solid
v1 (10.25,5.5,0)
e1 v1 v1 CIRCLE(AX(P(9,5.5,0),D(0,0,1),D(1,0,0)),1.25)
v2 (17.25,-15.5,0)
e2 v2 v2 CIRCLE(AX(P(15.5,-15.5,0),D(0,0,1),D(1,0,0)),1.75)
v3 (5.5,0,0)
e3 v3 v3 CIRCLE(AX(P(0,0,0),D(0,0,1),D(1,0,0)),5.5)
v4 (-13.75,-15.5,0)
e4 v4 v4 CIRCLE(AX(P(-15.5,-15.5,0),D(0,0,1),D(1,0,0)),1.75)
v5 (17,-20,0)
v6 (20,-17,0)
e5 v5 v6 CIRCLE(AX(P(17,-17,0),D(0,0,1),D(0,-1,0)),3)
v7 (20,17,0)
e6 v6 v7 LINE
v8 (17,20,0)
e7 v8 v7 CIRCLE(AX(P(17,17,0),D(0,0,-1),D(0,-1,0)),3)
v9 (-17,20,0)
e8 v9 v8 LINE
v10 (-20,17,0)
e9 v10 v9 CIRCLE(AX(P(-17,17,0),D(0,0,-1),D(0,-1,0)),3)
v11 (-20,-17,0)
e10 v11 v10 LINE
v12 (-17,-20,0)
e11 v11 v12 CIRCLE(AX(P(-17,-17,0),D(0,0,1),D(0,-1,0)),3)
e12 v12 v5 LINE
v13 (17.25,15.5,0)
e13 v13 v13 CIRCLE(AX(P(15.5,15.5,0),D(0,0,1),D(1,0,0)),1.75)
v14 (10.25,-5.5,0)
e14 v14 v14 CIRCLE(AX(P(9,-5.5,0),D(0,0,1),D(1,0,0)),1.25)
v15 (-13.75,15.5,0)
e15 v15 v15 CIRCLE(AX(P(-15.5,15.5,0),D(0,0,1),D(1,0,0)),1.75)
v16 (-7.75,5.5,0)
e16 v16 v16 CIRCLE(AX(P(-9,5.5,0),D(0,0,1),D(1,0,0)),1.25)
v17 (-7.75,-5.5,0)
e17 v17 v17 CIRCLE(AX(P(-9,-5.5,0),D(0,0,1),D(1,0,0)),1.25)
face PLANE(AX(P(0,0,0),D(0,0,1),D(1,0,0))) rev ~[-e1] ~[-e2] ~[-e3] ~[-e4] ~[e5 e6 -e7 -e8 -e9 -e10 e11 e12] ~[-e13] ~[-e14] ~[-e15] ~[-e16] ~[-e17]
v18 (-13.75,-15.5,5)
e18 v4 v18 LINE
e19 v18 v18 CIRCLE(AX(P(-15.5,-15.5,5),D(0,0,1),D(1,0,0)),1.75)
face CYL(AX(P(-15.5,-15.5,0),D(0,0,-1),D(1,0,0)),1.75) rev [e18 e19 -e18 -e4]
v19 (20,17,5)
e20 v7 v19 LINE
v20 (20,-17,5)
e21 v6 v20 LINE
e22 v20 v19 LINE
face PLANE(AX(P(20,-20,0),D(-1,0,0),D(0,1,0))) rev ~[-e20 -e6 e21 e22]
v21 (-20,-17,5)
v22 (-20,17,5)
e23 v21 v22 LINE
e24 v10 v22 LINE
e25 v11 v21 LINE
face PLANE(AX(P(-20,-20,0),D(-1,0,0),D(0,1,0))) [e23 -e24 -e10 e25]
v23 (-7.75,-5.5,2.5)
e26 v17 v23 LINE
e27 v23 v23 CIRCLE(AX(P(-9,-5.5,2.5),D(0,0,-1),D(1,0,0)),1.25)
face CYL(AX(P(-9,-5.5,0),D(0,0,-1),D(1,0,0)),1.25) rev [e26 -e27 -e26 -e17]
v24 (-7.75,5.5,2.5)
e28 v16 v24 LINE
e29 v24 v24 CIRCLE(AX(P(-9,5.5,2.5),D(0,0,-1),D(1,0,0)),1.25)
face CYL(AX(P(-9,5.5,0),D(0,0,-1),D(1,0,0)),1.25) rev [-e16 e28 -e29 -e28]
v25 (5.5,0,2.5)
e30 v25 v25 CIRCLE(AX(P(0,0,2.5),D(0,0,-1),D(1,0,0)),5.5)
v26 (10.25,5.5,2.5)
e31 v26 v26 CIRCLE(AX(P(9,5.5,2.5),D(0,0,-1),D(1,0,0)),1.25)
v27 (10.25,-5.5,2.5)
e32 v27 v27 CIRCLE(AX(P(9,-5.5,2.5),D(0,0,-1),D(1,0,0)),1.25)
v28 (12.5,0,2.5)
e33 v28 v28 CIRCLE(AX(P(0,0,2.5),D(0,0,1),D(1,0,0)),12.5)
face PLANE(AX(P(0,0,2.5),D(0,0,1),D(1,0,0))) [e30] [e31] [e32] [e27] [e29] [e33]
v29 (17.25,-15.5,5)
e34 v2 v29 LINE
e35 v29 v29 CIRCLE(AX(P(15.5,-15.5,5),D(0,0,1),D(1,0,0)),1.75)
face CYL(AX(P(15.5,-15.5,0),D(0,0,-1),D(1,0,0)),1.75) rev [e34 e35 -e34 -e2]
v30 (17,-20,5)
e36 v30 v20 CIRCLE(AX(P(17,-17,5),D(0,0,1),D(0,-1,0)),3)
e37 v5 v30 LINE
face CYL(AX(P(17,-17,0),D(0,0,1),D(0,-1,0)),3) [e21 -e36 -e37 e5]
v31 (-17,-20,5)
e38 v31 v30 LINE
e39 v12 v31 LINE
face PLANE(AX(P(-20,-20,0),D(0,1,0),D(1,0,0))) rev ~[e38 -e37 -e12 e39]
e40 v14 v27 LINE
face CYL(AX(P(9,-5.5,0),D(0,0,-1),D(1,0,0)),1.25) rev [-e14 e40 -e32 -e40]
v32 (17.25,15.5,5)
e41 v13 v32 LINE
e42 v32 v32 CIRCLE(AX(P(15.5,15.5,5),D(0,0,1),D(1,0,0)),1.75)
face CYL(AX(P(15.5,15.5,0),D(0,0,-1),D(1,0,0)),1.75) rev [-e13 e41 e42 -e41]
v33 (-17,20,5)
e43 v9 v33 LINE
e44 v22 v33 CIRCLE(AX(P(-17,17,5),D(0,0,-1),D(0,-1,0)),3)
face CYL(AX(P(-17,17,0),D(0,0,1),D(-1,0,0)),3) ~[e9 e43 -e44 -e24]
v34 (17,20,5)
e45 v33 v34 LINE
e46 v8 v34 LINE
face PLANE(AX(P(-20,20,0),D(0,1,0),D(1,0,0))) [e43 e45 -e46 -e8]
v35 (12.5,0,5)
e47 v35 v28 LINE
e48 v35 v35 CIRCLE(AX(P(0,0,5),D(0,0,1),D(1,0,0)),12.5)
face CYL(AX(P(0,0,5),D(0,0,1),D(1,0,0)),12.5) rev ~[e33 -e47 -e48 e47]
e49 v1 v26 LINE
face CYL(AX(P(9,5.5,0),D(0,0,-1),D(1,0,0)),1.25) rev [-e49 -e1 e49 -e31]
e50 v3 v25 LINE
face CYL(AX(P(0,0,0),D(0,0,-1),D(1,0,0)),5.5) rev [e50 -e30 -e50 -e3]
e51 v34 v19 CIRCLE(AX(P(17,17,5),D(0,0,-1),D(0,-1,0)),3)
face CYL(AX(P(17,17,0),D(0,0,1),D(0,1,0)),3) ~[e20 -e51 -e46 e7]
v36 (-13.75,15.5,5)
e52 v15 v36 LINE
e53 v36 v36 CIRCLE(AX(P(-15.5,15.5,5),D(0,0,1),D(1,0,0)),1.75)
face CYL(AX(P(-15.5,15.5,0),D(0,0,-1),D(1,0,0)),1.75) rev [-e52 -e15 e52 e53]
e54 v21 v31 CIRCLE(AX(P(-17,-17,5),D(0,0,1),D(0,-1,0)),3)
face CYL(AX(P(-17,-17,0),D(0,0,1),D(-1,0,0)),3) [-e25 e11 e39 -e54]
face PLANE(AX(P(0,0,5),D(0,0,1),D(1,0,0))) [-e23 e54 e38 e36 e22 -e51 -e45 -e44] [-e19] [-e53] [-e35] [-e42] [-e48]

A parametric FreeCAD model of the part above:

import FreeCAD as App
import Part
import Sketcher

V = App.Vector


def edges_at(feature, points):
    """Names of the edges that pass closest to the given points."""
    edges = feature.Shape.Edges
    near = lambda p: min(range(len(edges)), key=lambda i: edges[i].distToShape(Part.Vertex(*p))[0])
    return sorted({f"Edge{near(p) + 1}" for p in points})


def add_polygon(sketch, points):
    """Adds a closed chain of lines whose ends are joined by coincident constraints."""
    first, n = sketch.GeometryCount, len(points)
    for a, b in zip(points, points[1:] + points[:1]):
        sketch.addGeometry(Part.LineSegment(App.Vector(*a, 0), App.Vector(*b, 0)), False)
    for i in range(n):
        sketch.addConstraint(Sketcher.Constraint("Coincident", first + i, 2, first + (i + 1) % n, 1))

doc = App.newDocument("Part")
body = doc.addObject("PartDesign::Body", "Body")

sketch1 = body.newObject("Sketcher::SketchObject", "Sketch")
sketch1.AttachmentSupport = (doc.getObject("XY_Plane"), [""])
sketch1.MapMode = "FlatFace"
add_polygon(sketch1, [(-20, 20), (-20, -20), (20, -20), (20, 20)])
sketch1.addGeometry(Part.Circle(V(-15.5, -15.5, 0), V(0, 0, 1), 1.8), False)
sketch1.addGeometry(Part.Circle(V(-9, -5.5, 0), V(0, 0, 1), 1.2), False)
sketch1.addGeometry(Part.Circle(V(15.5, -15.5, 0), V(0, 0, 1), 1.8), False)
sketch1.addGeometry(Part.Circle(V(9, -5.5, 0), V(0, 0, 1), 1.2), False)
sketch1.addGeometry(Part.Circle(V(-9, 5.5, 0), V(0, 0, 1), 1.2), False)
sketch1.addGeometry(Part.Circle(V(-15.5, 15.5, 0), V(0, 0, 1), 1.8), False)
sketch1.addGeometry(Part.Circle(V(0, 0, 0), V(0, 0, 1), 5.5), False)
sketch1.addGeometry(Part.Circle(V(9, 5.5, 0), V(0, 0, 1), 1.2), False)
sketch1.addGeometry(Part.Circle(V(15.5, 15.5, 0), V(0, 0, 1), 1.8), False)
sketch1.addConstraint(Sketcher.Constraint("Vertical", 0))
sketch1.addConstraint(Sketcher.Constraint("Horizontal", 1))
sketch1.addConstraint(Sketcher.Constraint("Vertical", 2))
sketch1.addConstraint(Sketcher.Constraint("Horizontal", 3))
sketch1.addConstraint(Sketcher.Constraint("Coincident", 10, 3, -1, 1))
sketch1.addConstraint(Sketcher.Constraint("Equal", 4, 6))
sketch1.addConstraint(Sketcher.Constraint("Equal", 5, 7))
sketch1.addConstraint(Sketcher.Constraint("Equal", 7, 8))
sketch1.addConstraint(Sketcher.Constraint("Equal", 6, 9))
sketch1.addConstraint(Sketcher.Constraint("Equal", 8, 11))
sketch1.addConstraint(Sketcher.Constraint("Equal", 9, 12))
sketch1.addConstraint(Sketcher.Constraint("Symmetric", 7, 3, 8, 3, -1, 1))
sketch1.addConstraint(Sketcher.Constraint("Symmetric", 6, 3, 9, 3, -1, 1))
sketch1.addConstraint(Sketcher.Constraint("Symmetric", 5, 3, 11, 3, -1, 1))
sketch1.addConstraint(Sketcher.Constraint("Symmetric", 4, 3, 12, 3, -1, 1))
sketch1.addConstraint(Sketcher.Constraint("Symmetric", 0, 2, 2, 2, -1, 1))
sketch1.addConstraint(Sketcher.Constraint("Symmetric", 4, 3, 6, 3, -2))
sketch1.addConstraint(Sketcher.Constraint("Symmetric", 5, 3, 7, 3, -2))
sketch1.addConstraint(Sketcher.Constraint("Equal", 3, 0))
sketch1.addConstraint(Sketcher.Constraint("Diameter", 10, 11.0))
sketch1.addConstraint(Sketcher.Constraint("Diameter", 4, 3.5))
sketch1.addConstraint(Sketcher.Constraint("Diameter", 5, 2.5))
sketch1.addConstraint(Sketcher.Constraint("DistanceX", 1, 1, 1, 2, 40.0))
sketch1.addConstraint(Sketcher.Constraint("DistanceX", 5, 3, -1, 1, 9.0))
sketch1.addConstraint(Sketcher.Constraint("DistanceY", 4, 3, 5, 3, 10.0))
sketch1.addConstraint(Sketcher.Constraint("DistanceX", 4, 3, 6, 3, 31.0))
sketch1.addConstraint(Sketcher.Constraint("DistanceY", 5, 3, 8, 3, 11.0))
pad1 = body.newObject("PartDesign::Pad", "Pad")
pad1.Profile = sketch1
pad1.Length = 5

sketch2 = body.newObject("Sketcher::SketchObject", "Sketch001")
sketch2.AttachmentSupport = (doc.getObject("XY_Plane"), [""])
sketch2.MapMode = "FlatFace"
sketch2.AttachmentOffset = App.Placement(V(0, 0, 5), App.Rotation())
sketch2.addGeometry(Part.Circle(V(0, 0, 0), V(0, 0, 1), 12), False)
sketch2.addConstraint(Sketcher.Constraint("Coincident", 0, 3, -1, 1))
sketch2.addConstraint(Sketcher.Constraint("Diameter", 0, 25.0))
pocket1 = body.newObject("PartDesign::Pocket", "Pocket")
pocket1.Profile = sketch2
pocket1.Length = 2.5
doc.recompute()

fillet = body.newObject("PartDesign::Fillet", "Fillet")
fillet.Base = (pocket1, edges_at(pocket1, [
    (-20, -20, 2.5),
    (20, -20, 2.5),
    (20, 20, 2.5),
    (-20, 20, 2.5),
]))
fillet.Radius = 3

doc.recompute()
